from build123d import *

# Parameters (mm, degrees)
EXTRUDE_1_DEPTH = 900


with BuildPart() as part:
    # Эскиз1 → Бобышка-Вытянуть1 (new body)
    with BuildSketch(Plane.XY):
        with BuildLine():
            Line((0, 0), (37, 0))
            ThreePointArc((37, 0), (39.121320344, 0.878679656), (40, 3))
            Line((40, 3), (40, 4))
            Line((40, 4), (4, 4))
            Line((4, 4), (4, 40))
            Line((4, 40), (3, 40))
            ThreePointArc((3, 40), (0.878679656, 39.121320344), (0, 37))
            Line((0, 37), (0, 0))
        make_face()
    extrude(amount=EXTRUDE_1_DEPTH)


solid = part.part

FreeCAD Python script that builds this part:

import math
import FreeCAD as App
import Part
import Sketcher

doc = App.newDocument("Part")
body = doc.addObject("PartDesign::Body", "Body")

sketch1 = doc.addObject("Sketcher::SketchObject", "Sketch")
body.addObject(sketch1)
sketch1.AttachmentSupport = (doc.XY_Plane, [""])
sketch1.MapMode = "FlatFace"
sketch1.addGeometry([
    Part.LineSegment(App.Vector(0, 0, 0), App.Vector(37, 0, 0)),
    Part.ArcOfCircle(Part.Circle(App.Vector(37, 3, 0), App.Vector(0, 0, 1), 3), math.radians(-90), math.radians(0)),
    Part.LineSegment(App.Vector(40, 3, 0), App.Vector(40, 4, 0)),
    Part.LineSegment(App.Vector(40, 4, 0), App.Vector(4, 4, 0)),
    Part.LineSegment(App.Vector(4, 4, 0), App.Vector(4, 40, 0)),
    Part.LineSegment(App.Vector(4, 40, 0), App.Vector(3, 40, 0)),
    Part.ArcOfCircle(Part.Circle(App.Vector(3, 37, 0), App.Vector(0, 0, 1), 3), math.radians(90), math.radians(180)),
    Part.LineSegment(App.Vector(0, 37, 0), App.Vector(0, 0, 0)),
], False)
sketch1.addConstraint([
    Sketcher.Constraint("Tangent", 0, 2, 1, 1),
    Sketcher.Constraint("Tangent", 1, 2, 2, 1),
    Sketcher.Constraint("Coincident", 2, 2, 3, 1),
    Sketcher.Constraint("Coincident", 3, 2, 4, 1),
    Sketcher.Constraint("Coincident", 4, 2, 5, 1),
    Sketcher.Constraint("Tangent", 5, 2, 6, 1),
    Sketcher.Constraint("Tangent", 6, 2, 7, 1),
    Sketcher.Constraint("Coincident", 7, 2, 0, 1),
    Sketcher.Constraint("Horizontal", 0),
    Sketcher.Constraint("Vertical", 2),
    Sketcher.Constraint("Horizontal", 3),
    Sketcher.Constraint("Vertical", 4),
    Sketcher.Constraint("Horizontal", 5),
    Sketcher.Constraint("Vertical", 7),
    Sketcher.Constraint("Coincident", 7, 2, -1, 1),
    Sketcher.Constraint("Equal", 1, 6),
    Sketcher.Constraint("Equal", 5, 2),
    Sketcher.Constraint("Equal", 3, 4),
    Sketcher.Constraint("Radius", 1, 3.0),
    Sketcher.Constraint("DistanceX", 0, 1, 0, 2, 37.0),
    Sketcher.Constraint("DistanceX", 3, 2, 3, 1, 36.0),
])
pad1 = doc.addObject("PartDesign::Pad", "Pad")
body.addObject(pad1)
pad1.Profile = sketch1
pad1.Length = 900

doc.recompute()
